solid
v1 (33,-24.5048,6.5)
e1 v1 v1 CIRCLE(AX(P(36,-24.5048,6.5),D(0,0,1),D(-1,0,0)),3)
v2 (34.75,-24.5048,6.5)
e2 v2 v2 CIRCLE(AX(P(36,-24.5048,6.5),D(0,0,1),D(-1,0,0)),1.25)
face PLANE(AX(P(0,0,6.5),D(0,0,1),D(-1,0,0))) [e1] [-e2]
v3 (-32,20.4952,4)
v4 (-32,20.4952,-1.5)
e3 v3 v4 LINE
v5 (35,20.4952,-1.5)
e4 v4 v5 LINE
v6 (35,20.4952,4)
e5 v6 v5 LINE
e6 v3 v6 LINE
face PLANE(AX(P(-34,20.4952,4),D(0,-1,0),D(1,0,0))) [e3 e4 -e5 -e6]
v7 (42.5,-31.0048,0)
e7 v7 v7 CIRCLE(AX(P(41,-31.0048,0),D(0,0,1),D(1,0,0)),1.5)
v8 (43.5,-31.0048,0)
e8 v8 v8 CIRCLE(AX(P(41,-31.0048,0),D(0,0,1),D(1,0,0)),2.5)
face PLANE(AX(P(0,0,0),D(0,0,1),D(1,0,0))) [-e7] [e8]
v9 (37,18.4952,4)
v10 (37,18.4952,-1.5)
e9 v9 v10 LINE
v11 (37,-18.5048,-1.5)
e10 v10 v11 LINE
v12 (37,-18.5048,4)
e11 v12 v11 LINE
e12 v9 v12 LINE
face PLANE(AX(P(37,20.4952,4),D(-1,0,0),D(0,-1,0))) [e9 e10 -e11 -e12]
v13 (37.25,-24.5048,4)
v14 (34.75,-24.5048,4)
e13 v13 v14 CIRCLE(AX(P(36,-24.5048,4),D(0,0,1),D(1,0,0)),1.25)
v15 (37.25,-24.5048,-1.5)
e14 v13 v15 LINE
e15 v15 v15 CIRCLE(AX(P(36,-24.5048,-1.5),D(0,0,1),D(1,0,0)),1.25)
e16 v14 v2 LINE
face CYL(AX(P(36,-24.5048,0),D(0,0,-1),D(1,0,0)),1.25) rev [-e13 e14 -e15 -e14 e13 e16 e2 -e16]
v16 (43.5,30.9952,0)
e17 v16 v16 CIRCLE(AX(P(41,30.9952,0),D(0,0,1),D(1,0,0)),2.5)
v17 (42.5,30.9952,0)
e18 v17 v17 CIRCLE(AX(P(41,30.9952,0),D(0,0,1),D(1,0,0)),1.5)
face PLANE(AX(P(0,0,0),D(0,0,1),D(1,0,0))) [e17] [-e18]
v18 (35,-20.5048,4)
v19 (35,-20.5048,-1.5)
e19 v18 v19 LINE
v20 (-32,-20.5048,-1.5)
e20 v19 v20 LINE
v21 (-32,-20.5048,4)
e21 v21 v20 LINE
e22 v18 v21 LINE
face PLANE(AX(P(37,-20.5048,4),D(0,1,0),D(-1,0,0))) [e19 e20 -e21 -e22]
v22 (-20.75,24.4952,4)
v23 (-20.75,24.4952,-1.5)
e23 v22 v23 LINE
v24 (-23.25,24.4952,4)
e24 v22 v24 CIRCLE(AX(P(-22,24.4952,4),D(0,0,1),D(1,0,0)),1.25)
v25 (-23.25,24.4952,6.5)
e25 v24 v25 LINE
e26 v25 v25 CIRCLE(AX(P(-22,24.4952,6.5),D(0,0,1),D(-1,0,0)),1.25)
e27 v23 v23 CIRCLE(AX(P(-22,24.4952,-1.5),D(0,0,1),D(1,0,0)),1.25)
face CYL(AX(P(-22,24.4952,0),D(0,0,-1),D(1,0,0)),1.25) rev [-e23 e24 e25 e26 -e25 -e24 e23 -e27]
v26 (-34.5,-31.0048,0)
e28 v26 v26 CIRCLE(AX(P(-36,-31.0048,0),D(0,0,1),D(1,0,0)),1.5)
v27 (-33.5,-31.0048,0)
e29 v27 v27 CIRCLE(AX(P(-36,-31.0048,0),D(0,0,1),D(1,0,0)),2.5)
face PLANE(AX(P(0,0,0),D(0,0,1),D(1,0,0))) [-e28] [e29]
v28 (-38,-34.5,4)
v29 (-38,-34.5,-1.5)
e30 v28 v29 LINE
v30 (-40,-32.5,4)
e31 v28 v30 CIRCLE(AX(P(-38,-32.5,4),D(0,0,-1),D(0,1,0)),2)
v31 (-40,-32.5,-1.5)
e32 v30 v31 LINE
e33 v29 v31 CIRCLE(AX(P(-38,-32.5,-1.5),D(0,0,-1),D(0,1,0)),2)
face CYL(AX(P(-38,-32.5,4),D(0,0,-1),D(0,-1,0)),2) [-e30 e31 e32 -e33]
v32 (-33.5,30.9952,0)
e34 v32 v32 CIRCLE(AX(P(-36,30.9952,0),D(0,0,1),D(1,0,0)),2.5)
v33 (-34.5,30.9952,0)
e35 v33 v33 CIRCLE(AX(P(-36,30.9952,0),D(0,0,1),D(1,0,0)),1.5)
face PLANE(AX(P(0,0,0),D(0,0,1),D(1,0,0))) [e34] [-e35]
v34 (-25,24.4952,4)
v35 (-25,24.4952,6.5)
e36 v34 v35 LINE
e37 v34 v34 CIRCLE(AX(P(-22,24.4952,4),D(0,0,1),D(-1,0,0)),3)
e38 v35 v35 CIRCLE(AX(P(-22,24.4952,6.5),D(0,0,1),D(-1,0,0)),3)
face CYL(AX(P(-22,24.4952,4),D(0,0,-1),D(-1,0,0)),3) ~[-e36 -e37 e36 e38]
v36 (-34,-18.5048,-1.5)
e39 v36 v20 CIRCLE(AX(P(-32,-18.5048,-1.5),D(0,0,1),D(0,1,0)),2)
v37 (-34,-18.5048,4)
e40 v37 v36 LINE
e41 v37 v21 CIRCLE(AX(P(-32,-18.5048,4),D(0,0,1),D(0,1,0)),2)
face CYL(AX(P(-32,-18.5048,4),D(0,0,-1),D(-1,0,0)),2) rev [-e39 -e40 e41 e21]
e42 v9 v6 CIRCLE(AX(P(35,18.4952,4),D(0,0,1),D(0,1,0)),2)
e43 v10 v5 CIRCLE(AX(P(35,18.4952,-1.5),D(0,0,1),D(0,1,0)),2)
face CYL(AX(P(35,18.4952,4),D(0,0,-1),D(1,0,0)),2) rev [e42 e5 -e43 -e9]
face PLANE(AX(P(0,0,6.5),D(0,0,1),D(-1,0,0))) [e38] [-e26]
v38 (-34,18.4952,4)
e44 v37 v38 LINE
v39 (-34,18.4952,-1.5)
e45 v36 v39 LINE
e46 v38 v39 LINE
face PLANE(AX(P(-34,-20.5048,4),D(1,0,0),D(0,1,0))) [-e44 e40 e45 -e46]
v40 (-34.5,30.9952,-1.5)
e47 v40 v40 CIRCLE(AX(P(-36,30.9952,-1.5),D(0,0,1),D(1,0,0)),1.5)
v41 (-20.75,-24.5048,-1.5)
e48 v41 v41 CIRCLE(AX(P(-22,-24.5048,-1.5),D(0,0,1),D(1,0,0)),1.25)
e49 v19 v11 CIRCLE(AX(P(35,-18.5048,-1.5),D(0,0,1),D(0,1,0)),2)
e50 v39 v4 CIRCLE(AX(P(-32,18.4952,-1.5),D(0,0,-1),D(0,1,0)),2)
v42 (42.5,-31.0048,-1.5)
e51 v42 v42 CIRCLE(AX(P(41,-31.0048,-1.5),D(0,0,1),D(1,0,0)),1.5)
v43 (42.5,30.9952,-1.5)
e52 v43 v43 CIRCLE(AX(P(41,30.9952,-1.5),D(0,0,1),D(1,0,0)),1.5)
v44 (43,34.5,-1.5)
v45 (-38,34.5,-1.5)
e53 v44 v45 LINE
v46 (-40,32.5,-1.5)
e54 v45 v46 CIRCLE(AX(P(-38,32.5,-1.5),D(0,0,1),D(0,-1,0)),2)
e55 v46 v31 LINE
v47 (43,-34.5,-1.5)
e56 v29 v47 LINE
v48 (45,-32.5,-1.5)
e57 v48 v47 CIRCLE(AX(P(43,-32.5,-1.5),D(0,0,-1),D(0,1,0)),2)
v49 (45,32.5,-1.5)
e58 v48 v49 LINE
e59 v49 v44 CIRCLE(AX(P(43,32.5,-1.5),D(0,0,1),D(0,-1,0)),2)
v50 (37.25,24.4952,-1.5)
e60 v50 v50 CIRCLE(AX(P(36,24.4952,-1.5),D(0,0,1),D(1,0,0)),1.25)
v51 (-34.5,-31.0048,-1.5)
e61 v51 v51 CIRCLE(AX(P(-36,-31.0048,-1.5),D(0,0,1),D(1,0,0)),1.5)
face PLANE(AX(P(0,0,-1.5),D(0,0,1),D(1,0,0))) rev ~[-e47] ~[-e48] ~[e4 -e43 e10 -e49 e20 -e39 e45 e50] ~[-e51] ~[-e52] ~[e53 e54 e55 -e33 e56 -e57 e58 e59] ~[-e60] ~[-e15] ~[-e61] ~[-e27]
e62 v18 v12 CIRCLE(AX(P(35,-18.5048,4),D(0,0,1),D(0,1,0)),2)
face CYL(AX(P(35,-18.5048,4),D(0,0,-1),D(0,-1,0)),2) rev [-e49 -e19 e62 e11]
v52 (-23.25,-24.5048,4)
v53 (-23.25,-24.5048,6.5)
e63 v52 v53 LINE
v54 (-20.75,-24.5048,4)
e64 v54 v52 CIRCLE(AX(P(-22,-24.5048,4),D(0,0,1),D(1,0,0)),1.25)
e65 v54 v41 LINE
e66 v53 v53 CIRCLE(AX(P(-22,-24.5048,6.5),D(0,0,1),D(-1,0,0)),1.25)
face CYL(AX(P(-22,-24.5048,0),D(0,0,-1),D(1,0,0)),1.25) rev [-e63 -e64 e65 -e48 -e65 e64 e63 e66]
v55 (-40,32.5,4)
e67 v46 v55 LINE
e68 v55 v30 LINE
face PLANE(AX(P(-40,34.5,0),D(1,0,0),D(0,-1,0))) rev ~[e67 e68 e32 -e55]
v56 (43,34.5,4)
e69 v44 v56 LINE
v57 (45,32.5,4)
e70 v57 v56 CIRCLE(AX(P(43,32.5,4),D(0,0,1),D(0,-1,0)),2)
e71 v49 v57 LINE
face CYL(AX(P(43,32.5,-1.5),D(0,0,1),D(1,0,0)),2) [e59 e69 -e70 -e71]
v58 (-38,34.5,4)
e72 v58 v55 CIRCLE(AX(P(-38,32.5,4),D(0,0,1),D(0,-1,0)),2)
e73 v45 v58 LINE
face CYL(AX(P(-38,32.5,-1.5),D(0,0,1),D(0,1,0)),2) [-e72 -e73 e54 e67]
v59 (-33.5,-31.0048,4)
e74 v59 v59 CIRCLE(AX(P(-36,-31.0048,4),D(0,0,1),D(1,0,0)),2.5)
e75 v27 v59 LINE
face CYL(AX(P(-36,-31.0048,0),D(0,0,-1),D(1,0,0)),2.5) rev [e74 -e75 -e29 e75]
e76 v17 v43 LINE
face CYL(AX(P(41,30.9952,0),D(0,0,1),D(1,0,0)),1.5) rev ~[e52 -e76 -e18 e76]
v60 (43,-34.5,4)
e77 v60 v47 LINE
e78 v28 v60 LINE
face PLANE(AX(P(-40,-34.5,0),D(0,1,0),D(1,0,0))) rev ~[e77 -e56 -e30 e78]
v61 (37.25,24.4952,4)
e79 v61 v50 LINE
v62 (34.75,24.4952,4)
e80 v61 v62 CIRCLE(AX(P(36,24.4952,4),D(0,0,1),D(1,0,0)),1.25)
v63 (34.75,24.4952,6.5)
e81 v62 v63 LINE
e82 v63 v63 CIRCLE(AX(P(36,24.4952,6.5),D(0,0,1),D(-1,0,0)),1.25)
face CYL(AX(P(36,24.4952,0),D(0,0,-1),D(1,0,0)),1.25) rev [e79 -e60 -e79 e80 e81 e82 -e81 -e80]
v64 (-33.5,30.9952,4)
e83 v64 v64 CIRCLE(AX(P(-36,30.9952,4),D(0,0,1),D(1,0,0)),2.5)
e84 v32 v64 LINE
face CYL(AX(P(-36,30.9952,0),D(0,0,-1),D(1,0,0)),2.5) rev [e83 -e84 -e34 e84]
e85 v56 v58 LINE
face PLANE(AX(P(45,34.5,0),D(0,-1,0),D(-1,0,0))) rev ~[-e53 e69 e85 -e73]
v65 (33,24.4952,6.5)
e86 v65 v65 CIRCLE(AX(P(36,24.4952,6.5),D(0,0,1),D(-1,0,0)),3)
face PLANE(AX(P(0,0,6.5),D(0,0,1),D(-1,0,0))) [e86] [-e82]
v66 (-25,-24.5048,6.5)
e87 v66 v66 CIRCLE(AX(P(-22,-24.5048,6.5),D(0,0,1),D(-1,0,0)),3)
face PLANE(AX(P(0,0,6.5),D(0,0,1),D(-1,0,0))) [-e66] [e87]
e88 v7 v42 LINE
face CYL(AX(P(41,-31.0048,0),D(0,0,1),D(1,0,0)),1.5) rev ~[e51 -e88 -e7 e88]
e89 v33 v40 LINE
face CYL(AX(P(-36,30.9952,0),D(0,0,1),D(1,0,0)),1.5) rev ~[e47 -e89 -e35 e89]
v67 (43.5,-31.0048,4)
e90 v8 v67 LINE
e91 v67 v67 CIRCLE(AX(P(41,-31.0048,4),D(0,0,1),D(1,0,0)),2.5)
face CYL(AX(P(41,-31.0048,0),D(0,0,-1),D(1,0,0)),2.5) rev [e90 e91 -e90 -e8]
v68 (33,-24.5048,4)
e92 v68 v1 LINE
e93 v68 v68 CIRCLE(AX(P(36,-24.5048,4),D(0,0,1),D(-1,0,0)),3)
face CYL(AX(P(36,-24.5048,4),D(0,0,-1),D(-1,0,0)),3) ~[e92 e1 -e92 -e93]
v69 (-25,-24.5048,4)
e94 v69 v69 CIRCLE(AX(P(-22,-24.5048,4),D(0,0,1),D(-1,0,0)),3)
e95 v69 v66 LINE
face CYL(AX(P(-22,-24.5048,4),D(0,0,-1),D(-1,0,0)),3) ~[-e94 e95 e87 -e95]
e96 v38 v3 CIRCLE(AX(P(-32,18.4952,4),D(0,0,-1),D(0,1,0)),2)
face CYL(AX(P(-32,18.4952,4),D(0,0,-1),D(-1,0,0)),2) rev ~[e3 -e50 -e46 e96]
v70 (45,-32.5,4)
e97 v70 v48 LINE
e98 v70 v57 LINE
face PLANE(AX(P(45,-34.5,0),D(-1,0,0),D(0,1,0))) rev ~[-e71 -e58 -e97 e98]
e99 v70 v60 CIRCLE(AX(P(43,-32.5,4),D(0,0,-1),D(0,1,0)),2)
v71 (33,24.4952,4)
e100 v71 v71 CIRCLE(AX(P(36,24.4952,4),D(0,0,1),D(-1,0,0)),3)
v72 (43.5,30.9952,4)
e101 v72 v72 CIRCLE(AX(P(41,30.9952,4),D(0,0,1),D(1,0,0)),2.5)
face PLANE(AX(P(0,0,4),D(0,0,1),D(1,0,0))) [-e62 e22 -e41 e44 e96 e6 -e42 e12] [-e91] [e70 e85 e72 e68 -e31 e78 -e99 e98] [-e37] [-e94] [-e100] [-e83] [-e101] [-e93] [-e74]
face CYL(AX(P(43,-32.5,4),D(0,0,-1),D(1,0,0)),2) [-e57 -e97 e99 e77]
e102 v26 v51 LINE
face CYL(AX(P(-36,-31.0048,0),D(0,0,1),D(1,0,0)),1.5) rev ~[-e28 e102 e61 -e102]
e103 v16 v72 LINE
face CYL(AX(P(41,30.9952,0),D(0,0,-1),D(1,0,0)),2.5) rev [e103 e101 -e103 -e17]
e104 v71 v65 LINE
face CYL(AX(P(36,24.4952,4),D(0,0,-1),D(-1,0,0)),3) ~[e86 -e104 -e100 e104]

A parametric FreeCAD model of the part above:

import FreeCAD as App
import Part
import Sketcher
Q = App.Units.Quantity


def edges_at(feature, points):
    """Names of the edges that pass closest to the given points."""
    edges = feature.Shape.Edges
    near = lambda p: min(range(len(edges)), key=lambda i: edges[i].distToShape(Part.Vertex(*p))[0])
    return sorted({f"Edge{near(p) + 1}" for p in points})


def add_polygon(sketch, points):
    """Adds a closed chain of lines whose ends are joined by coincident constraints."""
    first, n = sketch.GeometryCount, len(points)
    for a, b in zip(points, points[1:] + points[:1]):
        sketch.addGeometry(Part.LineSegment(App.Vector(*a, 0), App.Vector(*b, 0)), False)
    for i in range(n):
        sketch.addConstraint(Sketcher.Constraint("Coincident", first + i, 2, first + (i + 1) % n, 1))

doc = App.newDocument("Part")
body = doc.addObject("PartDesign::Body", "Body")

# Sketch on XY plane
sketch1 = body.newObject("Sketcher::SketchObject", "Sketch")
sketch1.AttachmentSupport = (doc.getObject("XY_Plane"), [""])
sketch1.MapMode = "FlatFace"
add_polygon(sketch1, [(45, -34.5), (45, 34.5), (-40, 34.5), (-40, -34.5)])  # lines 0-3
sketch1.addGeometry(Part.Circle(App.Vector(-22, -24.5048, 0), App.Vector(0, 0, 1), 1.25), False)  # 4
sketch1.addGeometry(Part.Circle(App.Vector(36, -24.5048, 0), App.Vector(0, 0, 1), 1.25), False)  # 5
sketch1.addGeometry(Part.Circle(App.Vector(-22, 24.4952, 0), App.Vector(0, 0, 1), 1.25), False)  # 6
sketch1.addGeometry(Part.Circle(App.Vector(36, 24.4952, 0), App.Vector(0, 0, 1), 1.25), False)  # 7
sketch1.addGeometry(Part.Circle(App.Vector(-36, -31.0048, 0), App.Vector(0, 0, 1), 1.5), False)  # 8
sketch1.addGeometry(Part.Circle(App.Vector(41, -31.0048, 0), App.Vector(0, 0, 1), 1.5), False)  # 9
sketch1.addGeometry(Part.Circle(App.Vector(-36, 30.9952, 0), App.Vector(0, 0, 1), 1.5), False)  # 10
sketch1.addGeometry(Part.Circle(App.Vector(41, 30.9952, 0), App.Vector(0, 0, 1), 1.5), False)  # 11
sketch1.addConstraint(Sketcher.Constraint("Vertical", 0))
sketch1.addConstraint(Sketcher.Constraint("Horizontal", 1))
sketch1.addConstraint(Sketcher.Constraint("Vertical", 2))
sketch1.addConstraint(Sketcher.Constraint("Horizontal", 3))
sketch1.addConstraint(Sketcher.Constraint("Equal", 4, 5))
sketch1.addConstraint(Sketcher.Constraint("Equal", 5, 6))
sketch1.addConstraint(Sketcher.Constraint("Equal", 6, 7))
sketch1.addConstraint(Sketcher.Constraint("Equal", 8, 9))
sketch1.addConstraint(Sketcher.Constraint("Equal", 9, 10))
sketch1.addConstraint(Sketcher.Constraint("Equal", 10, 11))
sketch1.addConstraint(Sketcher.Constraint("Horizontal", 4, 3, 5, 3))
sketch1.addConstraint(Sketcher.Constraint("Horizontal", 6, 3, 7, 3))
sketch1.addConstraint(Sketcher.Constraint("Horizontal", 8, 3, 9, 3))
sketch1.addConstraint(Sketcher.Constraint("Horizontal", 10, 3, 11, 3))
sketch1.addConstraint(Sketcher.Constraint("Vertical", 4, 3, 6, 3))
sketch1.addConstraint(Sketcher.Constraint("Vertical", 5, 3, 7, 3))
sketch1.addConstraint(Sketcher.Constraint("Vertical", 8, 3, 10, 3))
sketch1.addConstraint(Sketcher.Constraint("Vertical", 9, 3, 11, 3))
sketch1.addConstraint(Sketcher.Constraint("Diameter", 8, Q("3 mm")))
sketch1.addConstraint(Sketcher.Constraint("Diameter", 4, Q("2.5 mm")))
sketch1.addConstraint(Sketcher.Constraint("DistanceX", 1, 2, 1, 1, Q("85 mm")))
sketch1.addConstraint(Sketcher.Constraint("DistanceY", 0, 1, 0, 2, Q("69 mm")))
sketch1.addConstraint(Sketcher.Constraint("DistanceX", -1, 1, 9, 3, Q("41 mm")))
sketch1.addConstraint(Sketcher.Constraint("DistanceX", 4, 3, 5, 3, Q("58 mm")))
sketch1.addConstraint(Sketcher.Constraint("DistanceY", 4, 3, 6, 3, Q("49 mm")))
sketch1.addConstraint(Sketcher.Constraint("DistanceX", 5, 3, 9, 3, Q("5 mm")))
sketch1.addConstraint(Sketcher.Constraint("DistanceX", 8, 3, -1, 1, Q("36 mm")))
sketch1.addConstraint(Sketcher.Constraint("DistanceX", -1, 1, 0, 2, Q("45 mm")))
sketch1.addConstraint(Sketcher.Constraint("DistanceY", 8, 3, 10, 3, Q("62 mm")))
sketch1.addConstraint(Sketcher.Constraint("DistanceY", -1, 1, 0, 2, Q("34.5 mm")))
sketch1.addConstraint(Sketcher.Constraint("DistanceY", 8, 3, 4, 3, Q("6.5 mm")))
sketch1.addConstraint(Sketcher.Constraint("DistanceY", 4, 3, -1, 1, Q("24.5048 mm")))
pad1 = body.newObject("PartDesign::Pad", "Pad")
pad1.Profile = sketch1
pad1.Length = 1.5
pad1.Reversed = True

# Sketch on XY plane
sketch2 = body.newObject("Sketcher::SketchObject", "Sketch001")
sketch2.AttachmentSupport = (doc.getObject("XY_Plane"), [""])
sketch2.MapMode = "FlatFace"
add_polygon(sketch2, [(45, -34.5), (45, 34.5), (-40, 34.5), (-40, -34.5)])  # lines 0-3
sketch2.addGeometry(Part.Circle(App.Vector(-36, -31.0048, 0), App.Vector(0, 0, 1), 2.5), False)  # 4
sketch2.addGeometry(Part.Circle(App.Vector(-22, -24.5048, 0), App.Vector(0, 0, 1), 1.25), False)  # 5
sketch2.addGeometry(Part.Circle(App.Vector(41, -31.0048, 0), App.Vector(0, 0, 1), 2.5), False)  # 6
sketch2.addGeometry(Part.Circle(App.Vector(36, -24.5048, 0), App.Vector(0, 0, 1), 1.25), False)  # 7
sketch2.addGeometry(Part.Circle(App.Vector(-22, 24.4952, 0), App.Vector(0, 0, 1), 1.25), False)  # 8
sketch2.addGeometry(Part.Circle(App.Vector(-36, 30.9952, 0), App.Vector(0, 0, 1), 2.5), False)  # 9
sketch2.addGeometry(Part.Circle(App.Vector(36, 24.4952, 0), App.Vector(0, 0, 1), 1.25), False)  # 10
sketch2.addGeometry(Part.Circle(App.Vector(41, 30.9952, 0), App.Vector(0, 0, 1), 2.5), False)  # 11
sketch2.addConstraint(Sketcher.Constraint("Vertical", 0))
sketch2.addConstraint(Sketcher.Constraint("Horizontal", 1))
sketch2.addConstraint(Sketcher.Constraint("Vertical", 2))
sketch2.addConstraint(Sketcher.Constraint("Horizontal", 3))
sketch2.addConstraint(Sketcher.Constraint("Equal", 4, 6))
sketch2.addConstraint(Sketcher.Constraint("Equal", 5, 7))
sketch2.addConstraint(Sketcher.Constraint("Equal", 7, 8))
sketch2.addConstraint(Sketcher.Constraint("Equal", 6, 9))
sketch2.addConstraint(Sketcher.Constraint("Equal", 8, 10))
sketch2.addConstraint(Sketcher.Constraint("Equal", 9, 11))
sketch2.addConstraint(Sketcher.Constraint("Horizontal", 4, 3, 6, 3))
sketch2.addConstraint(Sketcher.Constraint("Horizontal", 5, 3, 7, 3))
sketch2.addConstraint(Sketcher.Constraint("Horizontal", 8, 3, 10, 3))
sketch2.addConstraint(Sketcher.Constraint("Horizontal", 9, 3, 11, 3))
sketch2.addConstraint(Sketcher.Constraint("Vertical", 5, 3, 8, 3))
sketch2.addConstraint(Sketcher.Constraint("Vertical", 4, 3, 9, 3))
sketch2.addConstraint(Sketcher.Constraint("Vertical", 7, 3, 10, 3))
sketch2.addConstraint(Sketcher.Constraint("Vertical", 6, 3, 11, 3))
sketch2.addConstraint(Sketcher.Constraint("Diameter", 4, Q("5 mm")))
sketch2.addConstraint(Sketcher.Constraint("Diameter", 5, Q("2.5 mm")))
sketch2.addConstraint(Sketcher.Constraint("DistanceX", 1, 2, 1, 1, Q("85 mm")))
sketch2.addConstraint(Sketcher.Constraint("DistanceY", 0, 1, 0, 2, Q("69 mm")))
sketch2.addConstraint(Sketcher.Constraint("DistanceX", -1, 1, 6, 3, Q("41 mm")))
sketch2.addConstraint(Sketcher.Constraint("DistanceX", 7, 3, 6, 3, Q("5 mm")))
sketch2.addConstraint(Sketcher.Constraint("DistanceX", 5, 3, 7, 3, Q("58 mm")))
sketch2.addConstraint(Sketcher.Constraint("DistanceY", 5, 3, 8, 3, Q("49 mm")))
sketch2.addConstraint(Sketcher.Constraint("DistanceX", 4, 3, -1, 1, Q("36 mm")))
sketch2.addConstraint(Sketcher.Constraint("DistanceX", -1, 1, 0, 2, Q("45 mm")))
sketch2.addConstraint(Sketcher.Constraint("DistanceY", 4, 3, 9, 3, Q("62 mm")))
sketch2.addConstraint(Sketcher.Constraint("DistanceY", -1, 1, 0, 2, Q("34.5 mm")))
sketch2.addConstraint(Sketcher.Constraint("DistanceY", 4, 3, 5, 3, Q("6.5 mm")))
sketch2.addConstraint(Sketcher.Constraint("DistanceY", 4, 3, -1, 1, Q("31.0048 mm")))
pad2 = body.newObject("PartDesign::Pad", "Pad001")
pad2.Profile = sketch2
pad2.Length = 4
doc.recompute()

fillet = body.newObject("PartDesign::Fillet", "Fillet")
fillet.Base = (pad2, edges_at(pad2, [
    (-40, -34.5, 1.25),
    (45, -34.5, 1.25),
    (45, 34.5, 1.25),
    (-40, 34.5, 1.25),
]))
fillet.Radius = 2

# Sketch on XY plane
sketch3 = body.newObject("Sketcher::SketchObject", "Sketch002")
sketch3.AttachmentSupport = (doc.getObject("XY_Plane"), [""])
sketch3.MapMode = "FlatFace"
sketch3.AttachmentOffset = App.Placement(App.Vector(0, 0, 4), App.Rotation())
add_polygon(sketch3, [(37, 20.4952), (-34, 20.4952), (-34, -20.5048), (37, -20.5048)])  # lines 0-3
sketch3.addConstraint(Sketcher.Constraint("Horizontal", 0))
sketch3.addConstraint(Sketcher.Constraint("Vertical", 1))
sketch3.addConstraint(Sketcher.Constraint("Horizontal", 2))
sketch3.addConstraint(Sketcher.Constraint("Vertical", 3))
sketch3.addConstraint(Sketcher.Constraint("DistanceX", 0, 2, 0, 1, Q("71 mm")))
sketch3.addConstraint(Sketcher.Constraint("DistanceY", 1, 2, 1, 1, Q("41 mm")))
sketch3.addConstraint(Sketcher.Constraint("DistanceX", 0, 2, -1, 1, Q("34 mm")))
sketch3.addConstraint(Sketcher.Constraint("DistanceY", -1, 1, 0, 2, Q("20.4952 mm")))
pocket1 = body.newObject("PartDesign::Pocket", "Pocket")
pocket1.Profile = sketch3
pocket1.Length = 5.5
doc.recompute()

fillet2 = body.newObject("PartDesign::Fillet", "Fillet001")
fillet2.Base = (pocket1, edges_at(pocket1, [
    (-34, 20.495, 1.25),
    (-34, -20.505, 1.25),
    (37, -20.505, 1.25),
    (37, 20.495, 1.25),
]))
fillet2.Radius = 2

# Sketch on XY plane
sketch4 = body.newObject("Sketcher::SketchObject", "Sketch003")
sketch4.AttachmentSupport = (doc.getObject("XY_Plane"), [""])
sketch4.MapMode = "FlatFace"
sketch4.AttachmentOffset = App.Placement(App.Vector(0, 0, 4), App.Rotation())
sketch4.addGeometry(Part.Circle(App.Vector(-22, 24.4952, 0), App.Vector(0, 0, 1), 3), False)
sketch4.addGeometry(Part.Circle(App.Vector(-22, 24.4952, 0), App.Vector(0, 0, 1), 1.25), False)
sketch4.addGeometry(Part.Circle(App.Vector(36, 24.4952, 0), App.Vector(0, 0, 1), 3), False)
sketch4.addGeometry(Part.Circle(App.Vector(36, 24.4952, 0), App.Vector(0, 0, 1), 1.25), False)
sketch4.addGeometry(Part.Circle(App.Vector(-22, -24.5048, 0), App.Vector(0, 0, 1), 3), False)
sketch4.addGeometry(Part.Circle(App.Vector(-22, -24.5048, 0), App.Vector(0, 0, 1), 1.25), False)
sketch4.addGeometry(Part.Circle(App.Vector(36, -24.5048, 0), App.Vector(0, 0, 1), 3), False)
sketch4.addGeometry(Part.Circle(App.Vector(36, -24.5048, 0), App.Vector(0, 0, 1), 1.25), False)
sketch4.addConstraint(Sketcher.Constraint("Coincident", 1, 3, 0, 3))
sketch4.addConstraint(Sketcher.Constraint("Coincident", 3, 3, 2, 3))
sketch4.addConstraint(Sketcher.Constraint("Coincident", 5, 3, 4, 3))
sketch4.addConstraint(Sketcher.Constraint("Coincident", 7, 3, 6, 3))
sketch4.addConstraint(Sketcher.Constraint("Equal", 0, 2))
sketch4.addConstraint(Sketcher.Constraint("Equal", 1, 3))
sketch4.addConstraint(Sketcher.Constraint("Equal", 2, 4))
sketch4.addConstraint(Sketcher.Constraint("Equal", 3, 5))
sketch4.addConstraint(Sketcher.Constraint("Equal", 4, 6))
sketch4.addConstraint(Sketcher.Constraint("Equal", 5, 7))
sketch4.addConstraint(Sketcher.Constraint("Horizontal", 1, 3, 2, 3))
sketch4.addConstraint(Sketcher.Constraint("Horizontal", 5, 3, 6, 3))
sketch4.addConstraint(Sketcher.Constraint("Vertical", 1, 3, 4, 3))
sketch4.addConstraint(Sketcher.Constraint("Vertical", 3, 3, 6, 3))
sketch4.addConstraint(Sketcher.Constraint("Diameter", 0, Q("6 mm")))
sketch4.addConstraint(Sketcher.Constraint("DistanceX", 0, 3, 2, 3, Q("58 mm")))
sketch4.addConstraint(Sketcher.Constraint("DistanceY", 4, 3, 0, 3, Q("49 mm")))
sketch4.addConstraint(Sketcher.Constraint("Diameter", 1, Q("2.5 mm")))
sketch4.addConstraint(Sketcher.Constraint("DistanceX", 0, 3, -1, 1, Q("22 mm")))
sketch4.addConstraint(Sketcher.Constraint("DistanceY", -1, 1, 0, 3, Q("24.4952 mm")))
pad3 = body.newObject("PartDesign::Pad", "Pad002")
pad3.Profile = sketch4
pad3.Length = 2.5

doc.recompute()
